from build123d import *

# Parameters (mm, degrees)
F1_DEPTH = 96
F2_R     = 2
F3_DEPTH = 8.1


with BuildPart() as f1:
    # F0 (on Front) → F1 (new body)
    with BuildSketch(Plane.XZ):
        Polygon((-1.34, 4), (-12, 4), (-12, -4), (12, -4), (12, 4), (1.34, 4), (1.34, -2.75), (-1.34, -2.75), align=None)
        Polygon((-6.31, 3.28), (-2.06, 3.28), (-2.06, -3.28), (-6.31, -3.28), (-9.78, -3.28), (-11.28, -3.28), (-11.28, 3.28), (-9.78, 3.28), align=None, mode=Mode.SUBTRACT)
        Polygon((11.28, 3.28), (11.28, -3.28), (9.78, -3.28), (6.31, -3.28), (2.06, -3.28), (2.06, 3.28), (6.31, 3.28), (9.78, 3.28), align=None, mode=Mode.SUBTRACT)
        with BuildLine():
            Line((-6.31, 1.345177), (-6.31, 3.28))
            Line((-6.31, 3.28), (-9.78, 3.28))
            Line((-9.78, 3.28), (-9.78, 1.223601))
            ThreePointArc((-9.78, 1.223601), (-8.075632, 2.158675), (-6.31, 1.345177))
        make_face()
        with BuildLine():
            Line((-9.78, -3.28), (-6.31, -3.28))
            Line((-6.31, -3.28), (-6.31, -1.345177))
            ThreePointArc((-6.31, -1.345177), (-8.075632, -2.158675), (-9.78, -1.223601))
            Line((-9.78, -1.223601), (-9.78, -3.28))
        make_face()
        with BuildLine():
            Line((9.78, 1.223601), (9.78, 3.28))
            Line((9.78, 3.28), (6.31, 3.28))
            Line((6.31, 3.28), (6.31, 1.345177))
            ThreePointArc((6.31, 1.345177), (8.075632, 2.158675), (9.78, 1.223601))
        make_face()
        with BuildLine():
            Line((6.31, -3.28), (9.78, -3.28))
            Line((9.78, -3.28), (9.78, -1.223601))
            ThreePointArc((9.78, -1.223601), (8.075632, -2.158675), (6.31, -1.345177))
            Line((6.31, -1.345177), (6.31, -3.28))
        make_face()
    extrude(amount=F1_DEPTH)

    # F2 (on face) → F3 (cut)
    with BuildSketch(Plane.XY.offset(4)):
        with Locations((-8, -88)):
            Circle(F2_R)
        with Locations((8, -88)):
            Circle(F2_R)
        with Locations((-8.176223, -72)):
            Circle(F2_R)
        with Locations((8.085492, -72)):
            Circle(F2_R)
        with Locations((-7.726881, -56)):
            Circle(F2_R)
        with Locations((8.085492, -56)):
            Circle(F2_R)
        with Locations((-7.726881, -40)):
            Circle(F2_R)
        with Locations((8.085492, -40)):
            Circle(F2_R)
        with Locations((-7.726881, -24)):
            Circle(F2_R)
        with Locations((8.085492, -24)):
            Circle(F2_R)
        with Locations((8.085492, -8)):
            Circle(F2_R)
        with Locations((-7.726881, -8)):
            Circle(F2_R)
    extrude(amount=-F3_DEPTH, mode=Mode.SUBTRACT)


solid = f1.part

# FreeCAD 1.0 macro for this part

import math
import FreeCAD as App
import Part
import Sketcher

V = App.Vector

doc = App.newDocument("Part")
body = doc.addObject("PartDesign::Body", "Body")

# Sketch on XZ plane
sketch1 = body.newObject("Sketcher::SketchObject", "Sketch")
sketch1.AttachmentSupport = (doc.getObject("XZ_Plane"), [""])
sketch1.MapMode = "FlatFace"
sketch1.addGeometry([
    Part.LineSegment(V(-1.3, 4, 0), V(-12, 4, 0)),  # 0
    Part.LineSegment(V(-12, 4, 0), V(-12, -4, 0)),  # 1
    Part.LineSegment(V(-12, -4, 0), V(12, -4, 0)),  # 2
    Part.LineSegment(V(12, -4, 0), V(12, 4, 0)),  # 3
    Part.LineSegment(V(12, 4, 0), V(1.3, 4, 0)),  # 4
    Part.LineSegment(V(1.3, 4, 0), V(1.3, -2.8, 0)),  # 5
    Part.LineSegment(V(1.3, -2.8, 0), V(-1.3, -2.8, 0)),  # 6
    Part.LineSegment(V(-1.3, -2.8, 0), V(-1.3, 4, 0)),  # 7
    Part.LineSegment(V(-11.3, 3.3, 0), V(-9.8, 3.3, 0)),  # 8
    Part.LineSegment(V(-9.8, 3.3, 0), V(-9.8, 1.2, 0)),  # 9
    Part.ArcOfCircle(Part.Circle(V(-8, 0, 0), V(0, 0, 1), 2.2), math.radians(39), math.radians(145)),  # 10
    Part.LineSegment(V(-6.3, 1.3, 0), V(-6.3, 3.3, 0)),  # 11
    Part.LineSegment(V(-6.3, 3.3, 0), V(-2.1, 3.3, 0)),  # 12
    Part.LineSegment(V(-2.1, 3.3, 0), V(-2.1, -3.3, 0)),  # 13
    Part.LineSegment(V(-2.1, -3.3, 0), V(-6.3, -3.3, 0)),  # 14
    Part.LineSegment(V(-6.3, -3.3, 0), V(-6.3, -1.3, 0)),  # 15
    Part.ArcOfCircle(Part.Circle(V(-8, 0, 0), V(0, 0, 1), 2.2), math.radians(-145), math.radians(-39)),  # 16
    Part.LineSegment(V(-9.8, -1.2, 0), V(-9.8, -3.3, 0)),  # 17
    Part.LineSegment(V(-9.8, -3.3, 0), V(-11.3, -3.3, 0)),  # 18
    Part.LineSegment(V(-11.3, -3.3, 0), V(-11.3, 3.3, 0)),  # 19
    Part.LineSegment(V(2.1, 3.3, 0), V(6.3, 3.3, 0)),  # 20
    Part.LineSegment(V(6.3, 3.3, 0), V(6.3, 1.3, 0)),  # 21
    Part.ArcOfCircle(Part.Circle(V(8, 0, 0), V(0, 0, 1), 2.2), math.radians(35), math.radians(141)),  # 22
    Part.LineSegment(V(9.8, 1.2, 0), V(9.8, 3.3, 0)),  # 23
    Part.LineSegment(V(9.8, 3.3, 0), V(11.3, 3.3, 0)),  # 24
    Part.LineSegment(V(11.3, 3.3, 0), V(11.3, -3.3, 0)),  # 25
    Part.LineSegment(V(11.3, -3.3, 0), V(9.8, -3.3, 0)),  # 26
    Part.LineSegment(V(9.8, -3.3, 0), V(9.8, -1.2, 0)),  # 27
    Part.ArcOfCircle(Part.Circle(V(8, 0, 0), V(0, 0, 1), 2.2), math.radians(-141), math.radians(-35)),  # 28
    Part.LineSegment(V(6.3, -1.3, 0), V(6.3, -3.3, 0)),  # 29
    Part.LineSegment(V(6.3, -3.3, 0), V(2.1, -3.3, 0)),  # 30
    Part.LineSegment(V(2.1, -3.3, 0), V(2.1, 3.3, 0)),  # 31
], False)
sketch1.addConstraint([
    Sketcher.Constraint("Coincident", 0, 2, 1, 1),
    Sketcher.Constraint("Coincident", 1, 2, 2, 1),
    Sketcher.Constraint("Coincident", 2, 2, 3, 1),
    Sketcher.Constraint("Coincident", 3, 2, 4, 1),
    Sketcher.Constraint("Coincident", 4, 2, 5, 1),
    Sketcher.Constraint("Coincident", 5, 2, 6, 1),
    Sketcher.Constraint("Coincident", 6, 2, 7, 1),
    Sketcher.Constraint("Coincident", 7, 2, 0, 1),
    Sketcher.Constraint("Coincident", 8, 2, 9, 1),
    Sketcher.Constraint("Coincident", 9, 2, 10, 2),
    Sketcher.Constraint("Coincident", 10, 1, 11, 1),
    Sketcher.Constraint("Coincident", 11, 2, 12, 1),
    Sketcher.Constraint("Coincident", 12, 2, 13, 1),
    Sketcher.Constraint("Coincident", 13, 2, 14, 1),
    Sketcher.Constraint("Coincident", 14, 2, 15, 1),
    Sketcher.Constraint("Coincident", 15, 2, 16, 2),
    Sketcher.Constraint("Coincident", 16, 1, 17, 1),
    Sketcher.Constraint("Coincident", 17, 2, 18, 1),
    Sketcher.Constraint("Coincident", 18, 2, 19, 1),
    Sketcher.Constraint("Coincident", 19, 2, 8, 1),
    Sketcher.Constraint("Coincident", 20, 2, 21, 1),
    Sketcher.Constraint("Coincident", 21, 2, 22, 2),
    Sketcher.Constraint("Coincident", 22, 1, 23, 1),
    Sketcher.Constraint("Coincident", 23, 2, 24, 1),
    Sketcher.Constraint("Coincident", 24, 2, 25, 1),
    Sketcher.Constraint("Coincident", 25, 2, 26, 1),
    Sketcher.Constraint("Coincident", 26, 2, 27, 1),
    Sketcher.Constraint("Coincident", 27, 2, 28, 2),
    Sketcher.Constraint("Coincident", 28, 1, 29, 1),
    Sketcher.Constraint("Coincident", 29, 2, 30, 1),
    Sketcher.Constraint("Coincident", 30, 2, 31, 1),
    Sketcher.Constraint("Coincident", 31, 2, 20, 1),
    Sketcher.Constraint("Horizontal", 0),
    Sketcher.Constraint("Vertical", 1),
    Sketcher.Constraint("Horizontal", 2),
    Sketcher.Constraint("Vertical", 3),
    Sketcher.Constraint("Horizontal", 4),
    Sketcher.Constraint("Vertical", 5),
    Sketcher.Constraint("Horizontal", 6),
    Sketcher.Constraint("Vertical", 7),
    Sketcher.Constraint("Horizontal", 8),
    Sketcher.Constraint("Vertical", 9),
    Sketcher.Constraint("Vertical", 11),
    Sketcher.Constraint("Horizontal", 12),
    Sketcher.Constraint("Vertical", 13),
    Sketcher.Constraint("Horizontal", 14),
    Sketcher.Constraint("Vertical", 15),
    Sketcher.Constraint("Vertical", 17),
    Sketcher.Constraint("Horizontal", 18),
    Sketcher.Constraint("Vertical", 19),
    Sketcher.Constraint("Horizontal", 20),
    Sketcher.Constraint("Vertical", 21),
    Sketcher.Constraint("Vertical", 23),
    Sketcher.Constraint("Horizontal", 24),
    Sketcher.Constraint("Vertical", 25),
    Sketcher.Constraint("Horizontal", 26),
    Sketcher.Constraint("Vertical", 27),
    Sketcher.Constraint("Vertical", 29),
    Sketcher.Constraint("Horizontal", 30),
    Sketcher.Constraint("Vertical", 31),
    Sketcher.Constraint("Coincident", 16, 3, 10, 3),
    Sketcher.Constraint("Coincident", 28, 3, 22, 3),
    Sketcher.Constraint("Equal", 10, 16),
    Sketcher.Constraint("Equal", 16, 22),
    Sketcher.Constraint("Equal", 22, 28),
    Sketcher.Constraint("Symmetric", 10, 3, 22, 3, -1, 1),
    Sketcher.Constraint("Symmetric", 0, 2, 2, 2, -1, 1),
    Sketcher.Constraint("Symmetric", 14, 2, 20, 2, -1, 1),
    Sketcher.Constraint("Symmetric", 17, 2, 23, 2, -1, 1),
    Sketcher.Constraint("Symmetric", 19, 2, 25, 2, -1, 1),
    Sketcher.Constraint("Symmetric", 11, 2, 29, 2, -1, 1),
    Sketcher.Constraint("Symmetric", 4, 2, 7, 2, -2),
    Sketcher.Constraint("Symmetric", 11, 2, 20, 2, -2),
    Sketcher.Constraint("Symmetric", 9, 2, 22, 1, -2),
    Sketcher.Constraint("Symmetric", 17, 2, 26, 2, -2),
    Sketcher.Constraint("Horizontal", 8, 2, 11, 2),
    Sketcher.Constraint("Equal", 14, 20),
    Sketcher.Constraint("DistanceX", 2, 1, 2, 2, 24.0),
    Sketcher.Constraint("DistanceY", 1, 2, 1, 1, 8.0),
    Sketcher.Constraint("Radius", 10, 2.160001),
    Sketcher.Constraint("DistanceX", 8, 1, 8, 2, 1.5),
    Sketcher.Constraint("DistanceX", 10, 3, -1, 1, 8.0),
    Sketcher.Constraint("DistanceX", 0, 2, 0, 1, 10.66),
    Sketcher.Constraint("DistanceX", 12, 1, 12, 2, 4.25),
    Sketcher.Constraint("DistanceY", 5, 2, 5, 1, 6.75),
    Sketcher.Constraint("DistanceY", 13, 2, 13, 1, 6.56),
    Sketcher.Constraint("DistanceX", 12, 2, 4, 2, 3.4),
    Sketcher.Constraint("DistanceX", 8, 2, -1, 1, 9.78),
])
pad1 = body.newObject("PartDesign::Pad", "Pad")
pad1.Profile = sketch1
pad1.Length = 96

# Sketch on XY plane
sketch2 = body.newObject("Sketcher::SketchObject", "Sketch001")
sketch2.AttachmentSupport = (doc.getObject("XY_Plane"), [""])
sketch2.MapMode = "FlatFace"
sketch2.AttachmentOffset = App.Placement(V(0, 0, 4), App.Rotation())
sketch2.addGeometry([
    Part.Circle(V(-8, -88, 0), V(0, 0, 1), 2),  # 0
    Part.Circle(V(8, -88, 0), V(0, 0, 1), 2),  # 1
    Part.Circle(V(-8.2, -72, 0), V(0, 0, 1), 2),  # 2
    Part.Circle(V(8.1, -72, 0), V(0, 0, 1), 2),  # 3
    Part.Circle(V(-7.7, -56, 0), V(0, 0, 1), 2),  # 4
    Part.Circle(V(8.1, -56, 0), V(0, 0, 1), 2),  # 5
    Part.Circle(V(-7.7, -40, 0), V(0, 0, 1), 2),  # 6
    Part.Circle(V(8.1, -40, 0), V(0, 0, 1), 2),  # 7
    Part.Circle(V(-7.7, -24, 0), V(0, 0, 1), 2),  # 8
    Part.Circle(V(8.1, -24, 0), V(0, 0, 1), 2),  # 9
    Part.Circle(V(8.1, -8, 0), V(0, 0, 1), 2),  # 10
    Part.Circle(V(-7.7, -8, 0), V(0, 0, 1), 2),  # 11
], False)
sketch2.addConstraint([
    Sketcher.Constraint("Equal", 0, 1),
    Sketcher.Constraint("Equal", 1, 2),
    Sketcher.Constraint("Equal", 2, 3),
    Sketcher.Constraint("Equal", 3, 4),
    Sketcher.Constraint("Equal", 4, 5),
    Sketcher.Constraint("Equal", 5, 6),
    Sketcher.Constraint("Equal", 6, 7),
    Sketcher.Constraint("Equal", 7, 8),
    Sketcher.Constraint("Equal", 8, 9),
    Sketcher.Constraint("Equal", 9, 10),
    Sketcher.Constraint("Equal", 10, 11),
    Sketcher.Constraint("Symmetric", 0, 3, 1, 3, -2),
    Sketcher.Constraint("Horizontal", 2, 3, 3, 3),
    Sketcher.Constraint("Horizontal", 4, 3, 5, 3),
    Sketcher.Constraint("Horizontal", 6, 3, 7, 3),
    Sketcher.Constraint("Horizontal", 8, 3, 9, 3),
    Sketcher.Constraint("Horizontal", 10, 3, 11, 3),
    Sketcher.Constraint("Vertical", 3, 3, 5, 3),
    Sketcher.Constraint("Vertical", 4, 3, 6, 3),
    Sketcher.Constraint("Vertical", 5, 3, 7, 3),
    Sketcher.Constraint("Vertical", 6, 3, 8, 3),
    Sketcher.Constraint("Vertical", 7, 3, 9, 3),
    Sketcher.Constraint("Vertical", 9, 3, 10, 3),
    Sketcher.Constraint("Vertical", 8, 3, 11, 3),
    Sketcher.Constraint("Diameter", 0, 4.0),
    Sketcher.Constraint("DistanceX", 0, 3, -1, 1, 8.0),
    Sketcher.Constraint("DistanceY", 0, 3, -1, 1, 88.0),
    Sketcher.Constraint("DistanceY", 2, 3, -1, 1, 72.0),
    Sketcher.Constraint("DistanceY", 4, 3, -1, 1, 56.0),
    Sketcher.Constraint("DistanceY", 6, 3, -1, 1, 40.0),
    Sketcher.Constraint("DistanceY", 8, 3, -1, 1, 24.0),
    Sketcher.Constraint("DistanceY", 10, 3, -1, 1, 8.0),
    Sketcher.Constraint("DistanceX", 4, 3, -1, 1, 7.726881),
    Sketcher.Constraint("DistanceX", 2, 3, -1, 1, 8.176223),
    Sketcher.Constraint("DistanceX", -1, 1, 3, 3, 8.085492),
])
pocket1 = body.newObject("PartDesign::Pocket", "Pocket")
pocket1.Profile = sketch2
pocket1.Length = 8.1

doc.recompute()
